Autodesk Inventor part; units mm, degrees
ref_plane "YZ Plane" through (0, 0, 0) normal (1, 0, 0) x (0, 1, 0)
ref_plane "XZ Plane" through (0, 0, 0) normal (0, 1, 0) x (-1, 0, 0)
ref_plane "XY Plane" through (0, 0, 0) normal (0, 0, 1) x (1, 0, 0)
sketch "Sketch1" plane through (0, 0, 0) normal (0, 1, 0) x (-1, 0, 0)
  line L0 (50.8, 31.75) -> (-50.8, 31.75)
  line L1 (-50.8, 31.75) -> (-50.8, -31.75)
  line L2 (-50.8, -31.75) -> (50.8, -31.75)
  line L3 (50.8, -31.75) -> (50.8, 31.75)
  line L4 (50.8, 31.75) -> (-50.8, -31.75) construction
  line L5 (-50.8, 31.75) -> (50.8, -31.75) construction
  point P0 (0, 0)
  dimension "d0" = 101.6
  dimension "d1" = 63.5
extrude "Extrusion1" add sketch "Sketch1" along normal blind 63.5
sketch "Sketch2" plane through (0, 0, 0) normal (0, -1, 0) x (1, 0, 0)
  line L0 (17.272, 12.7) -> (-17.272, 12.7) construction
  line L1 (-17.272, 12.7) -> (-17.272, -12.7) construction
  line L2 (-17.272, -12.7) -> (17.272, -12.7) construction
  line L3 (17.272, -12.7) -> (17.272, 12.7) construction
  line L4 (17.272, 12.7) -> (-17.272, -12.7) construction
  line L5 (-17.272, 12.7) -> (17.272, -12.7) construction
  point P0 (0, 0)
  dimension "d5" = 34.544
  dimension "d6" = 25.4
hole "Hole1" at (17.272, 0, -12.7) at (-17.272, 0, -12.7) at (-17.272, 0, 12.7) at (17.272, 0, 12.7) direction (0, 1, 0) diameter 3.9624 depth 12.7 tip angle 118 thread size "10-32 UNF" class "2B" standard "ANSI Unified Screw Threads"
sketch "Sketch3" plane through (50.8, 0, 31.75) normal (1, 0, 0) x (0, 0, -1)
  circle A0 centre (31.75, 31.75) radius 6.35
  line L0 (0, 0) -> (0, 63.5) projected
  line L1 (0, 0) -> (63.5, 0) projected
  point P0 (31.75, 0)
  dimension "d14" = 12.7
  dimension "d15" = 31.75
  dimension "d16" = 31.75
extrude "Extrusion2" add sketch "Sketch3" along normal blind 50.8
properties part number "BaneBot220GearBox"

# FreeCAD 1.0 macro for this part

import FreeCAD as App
import Part
import Sketcher
from FreeCAD import Vector
Q = App.Units.Quantity


def add_polygon(sketch, points):
    """Adds a closed chain of lines whose ends are joined by coincident constraints."""
    first, n = sketch.GeometryCount, len(points)
    for a, b in zip(points, points[1:] + points[:1]):
        sketch.addGeometry(Part.LineSegment(App.Vector(*a, 0), App.Vector(*b, 0)), False)
    for i in range(n):
        sketch.addConstraint(Sketcher.Constraint("Coincident", first + i, 2, first + (i + 1) % n, 1))

doc = App.newDocument("Part")
body = doc.addObject("PartDesign::Body", "Body")

# Sketch on XZ plane
sketch1 = body.newObject("Sketcher::SketchObject", "Sketch")
sketch1.AttachmentSupport = (doc.getObject("XZ_Plane"), [""])
sketch1.MapMode = "FlatFace"
add_polygon(sketch1, [(-50.8, -31.75), (-50.8, 31.75), (50.8, 31.75), (50.8, -31.75)])  # lines 0-3
sketch1.addConstraint([
    Sketcher.Constraint("Vertical", 0),
    Sketcher.Constraint("Horizontal", 1),
    Sketcher.Constraint("Vertical", 2),
    Sketcher.Constraint("Horizontal", 3),
    Sketcher.Constraint("Symmetric", 0, 2, 2, 2, -1, 1),
    Sketcher.Constraint("DistanceX", 1, 1, 1, 2, Q("4 in")),
    Sketcher.Constraint("DistanceY", 0, 1, 0, 2, Q("2.5 in")),
])
pad1 = body.newObject("PartDesign::Pad", "Pad")
pad1.Profile = sketch1
pad1.Length = Q("2.5 in")
pad1.Reversed = True

# Sketch on XZ plane
sketch2 = body.newObject("Sketcher::SketchObject", "Sketch001")
sketch2.AttachmentSupport = (doc.getObject("XZ_Plane"), [""])
sketch2.MapMode = "FlatFace"
sketch2.addGeometry([
    Part.Circle(Vector(17.272, -12.7, 0), Vector(0, 0, 1), 1.9812),
    Part.Circle(Vector(-17.272, -12.7, 0), Vector(0, 0, 1), 1.9812),
    Part.Circle(Vector(-17.272, 12.7, 0), Vector(0, 0, 1), 1.9812),
    Part.Circle(Vector(17.272, 12.7, 0), Vector(0, 0, 1), 1.9812),
], False)
sketch2.addConstraint([
    Sketcher.Constraint("Equal", 0, 1),
    Sketcher.Constraint("Equal", 1, 2),
    Sketcher.Constraint("Equal", 2, 3),
    Sketcher.Constraint("Symmetric", 0, 3, 2, 3, -1, 1),
    Sketcher.Constraint("Symmetric", 1, 3, 3, 3, -1, 1),
    Sketcher.Constraint("Symmetric", 0, 3, 1, 3, -2),
    Sketcher.Constraint("Diameter", 0, Q("0.156 in")),
    Sketcher.Constraint("DistanceY", 1, 3, 2, 3, Q("1 in")),
    Sketcher.Constraint("DistanceX", -1, 1, 0, 3, Q("0.68 in")),
])
doc.recompute()
hole = body.newObject("PartDesign::Hole", "Hole")
hole.Profile = sketch2
hole.ThreadType = "None"
hole.Diameter = Q("0.156 in")
hole.DepthType = "Dimension"
hole.Depth = Q("0.5 in")
hole.DrillPoint = "Angled"
hole.DrillPointAngle = 118

# Sketch on YZ plane
sketch3 = body.newObject("Sketcher::SketchObject", "Sketch002")
sketch3.AttachmentSupport = (doc.getObject("YZ_Plane"), [""])
sketch3.MapMode = "FlatFace"
sketch3.AttachmentOffset = App.Placement(Vector(0, 0, 2 * 25.4), App.Rotation())
sketch3.addGeometry(Part.Circle(Vector(31.75, 0, 0), Vector(0, 0, 1), 6.35), False)
sketch3.addConstraint([
    Sketcher.Constraint("PointOnObject", 0, 3, -1),
    Sketcher.Constraint("Diameter", 0, Q("0.5 in")),
    Sketcher.Constraint("DistanceX", -1, 1, 0, 3, Q("1.25 in")),
])
pad2 = body.newObject("PartDesign::Pad", "Pad001")
pad2.Profile = sketch3
pad2.Length = Q("2 in")

doc.recompute()
